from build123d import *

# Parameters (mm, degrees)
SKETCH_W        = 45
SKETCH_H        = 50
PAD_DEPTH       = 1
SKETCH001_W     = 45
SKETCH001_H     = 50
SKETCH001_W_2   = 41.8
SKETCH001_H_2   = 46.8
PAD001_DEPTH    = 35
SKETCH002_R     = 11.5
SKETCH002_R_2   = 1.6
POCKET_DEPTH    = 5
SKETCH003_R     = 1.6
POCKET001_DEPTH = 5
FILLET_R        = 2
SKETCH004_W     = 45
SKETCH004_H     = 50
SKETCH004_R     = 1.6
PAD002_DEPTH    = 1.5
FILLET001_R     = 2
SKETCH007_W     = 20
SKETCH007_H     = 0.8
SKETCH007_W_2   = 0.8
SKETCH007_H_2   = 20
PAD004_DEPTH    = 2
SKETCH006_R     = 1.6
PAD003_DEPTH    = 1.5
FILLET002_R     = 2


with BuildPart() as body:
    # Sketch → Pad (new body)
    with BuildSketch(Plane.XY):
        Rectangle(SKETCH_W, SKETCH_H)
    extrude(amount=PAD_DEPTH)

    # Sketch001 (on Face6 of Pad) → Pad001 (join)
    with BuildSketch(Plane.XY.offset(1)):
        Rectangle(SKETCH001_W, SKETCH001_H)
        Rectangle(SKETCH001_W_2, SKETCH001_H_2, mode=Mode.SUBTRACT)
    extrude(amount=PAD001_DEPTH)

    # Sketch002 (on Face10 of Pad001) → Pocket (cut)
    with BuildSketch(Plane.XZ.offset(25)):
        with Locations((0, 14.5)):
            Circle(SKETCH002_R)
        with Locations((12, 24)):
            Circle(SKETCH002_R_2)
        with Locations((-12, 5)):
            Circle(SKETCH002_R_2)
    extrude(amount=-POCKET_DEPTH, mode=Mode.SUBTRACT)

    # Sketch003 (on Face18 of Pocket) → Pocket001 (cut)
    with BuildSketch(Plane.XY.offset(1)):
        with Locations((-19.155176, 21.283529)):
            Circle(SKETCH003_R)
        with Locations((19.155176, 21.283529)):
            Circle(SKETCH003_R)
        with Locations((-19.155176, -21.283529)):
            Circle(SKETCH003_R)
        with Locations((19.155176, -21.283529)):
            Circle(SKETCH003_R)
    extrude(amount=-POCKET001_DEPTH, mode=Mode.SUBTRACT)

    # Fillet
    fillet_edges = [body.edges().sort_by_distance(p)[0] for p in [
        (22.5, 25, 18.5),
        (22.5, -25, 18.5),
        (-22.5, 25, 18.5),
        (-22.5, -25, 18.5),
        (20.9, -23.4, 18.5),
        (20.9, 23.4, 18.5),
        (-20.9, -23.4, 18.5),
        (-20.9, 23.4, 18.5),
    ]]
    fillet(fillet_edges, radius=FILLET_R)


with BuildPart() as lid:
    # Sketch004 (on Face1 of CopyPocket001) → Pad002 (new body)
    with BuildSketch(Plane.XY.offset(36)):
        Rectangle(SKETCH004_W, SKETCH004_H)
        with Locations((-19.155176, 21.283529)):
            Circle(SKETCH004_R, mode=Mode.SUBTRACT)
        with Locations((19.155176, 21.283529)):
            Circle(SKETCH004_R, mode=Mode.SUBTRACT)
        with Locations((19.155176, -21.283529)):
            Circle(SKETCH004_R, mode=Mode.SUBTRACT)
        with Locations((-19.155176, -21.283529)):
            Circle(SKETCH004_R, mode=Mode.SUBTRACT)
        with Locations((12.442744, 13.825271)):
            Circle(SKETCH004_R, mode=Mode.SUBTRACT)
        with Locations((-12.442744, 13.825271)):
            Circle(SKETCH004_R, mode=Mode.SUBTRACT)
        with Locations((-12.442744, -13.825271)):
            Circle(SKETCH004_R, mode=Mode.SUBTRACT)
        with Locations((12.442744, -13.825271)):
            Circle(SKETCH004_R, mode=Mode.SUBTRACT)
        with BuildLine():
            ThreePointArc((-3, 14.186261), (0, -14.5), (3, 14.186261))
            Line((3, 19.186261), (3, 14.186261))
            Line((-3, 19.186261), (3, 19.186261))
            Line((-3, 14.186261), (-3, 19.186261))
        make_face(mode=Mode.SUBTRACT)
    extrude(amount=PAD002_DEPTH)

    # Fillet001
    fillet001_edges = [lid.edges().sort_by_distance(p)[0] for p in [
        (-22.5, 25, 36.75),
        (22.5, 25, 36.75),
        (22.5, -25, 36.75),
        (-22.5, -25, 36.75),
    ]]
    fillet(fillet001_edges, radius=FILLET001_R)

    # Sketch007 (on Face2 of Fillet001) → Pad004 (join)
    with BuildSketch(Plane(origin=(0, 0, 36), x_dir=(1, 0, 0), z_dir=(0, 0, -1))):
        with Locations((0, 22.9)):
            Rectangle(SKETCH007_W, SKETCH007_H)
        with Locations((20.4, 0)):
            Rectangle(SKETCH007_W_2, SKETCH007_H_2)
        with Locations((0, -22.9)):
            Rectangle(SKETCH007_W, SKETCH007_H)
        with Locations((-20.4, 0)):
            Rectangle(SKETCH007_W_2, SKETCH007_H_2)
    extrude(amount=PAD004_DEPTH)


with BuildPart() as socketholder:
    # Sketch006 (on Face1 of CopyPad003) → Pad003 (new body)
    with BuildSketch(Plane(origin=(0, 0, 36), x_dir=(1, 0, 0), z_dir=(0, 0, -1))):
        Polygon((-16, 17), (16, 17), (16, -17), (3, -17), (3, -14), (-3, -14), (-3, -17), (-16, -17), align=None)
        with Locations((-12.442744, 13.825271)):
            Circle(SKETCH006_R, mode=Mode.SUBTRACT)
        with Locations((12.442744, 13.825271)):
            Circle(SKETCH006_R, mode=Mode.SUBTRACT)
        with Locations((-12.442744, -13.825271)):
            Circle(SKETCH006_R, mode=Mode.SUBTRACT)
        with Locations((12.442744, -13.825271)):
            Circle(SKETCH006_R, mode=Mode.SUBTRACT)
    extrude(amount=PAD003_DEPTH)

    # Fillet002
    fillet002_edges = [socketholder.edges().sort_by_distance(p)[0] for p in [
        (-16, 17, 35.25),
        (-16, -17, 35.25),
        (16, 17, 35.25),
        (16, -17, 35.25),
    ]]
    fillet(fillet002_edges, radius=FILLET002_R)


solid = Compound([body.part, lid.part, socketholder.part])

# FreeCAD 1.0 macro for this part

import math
import FreeCAD as App
import Part
import Sketcher
Q = App.Units.Quantity


def edges_at(feature, points):
    """Names of the edges that pass closest to the given points."""
    edges = feature.Shape.Edges
    near = lambda p: min(range(len(edges)), key=lambda i: edges[i].distToShape(Part.Vertex(*p))[0])
    return sorted({f"Edge{near(p) + 1}" for p in points})


def add_polygon(sketch, points):
    """Adds a closed chain of lines whose ends are joined by coincident constraints."""
    first, n = sketch.GeometryCount, len(points)
    for a, b in zip(points, points[1:] + points[:1]):
        sketch.addGeometry(Part.LineSegment(App.Vector(*a, 0), App.Vector(*b, 0)), False)
    for i in range(n):
        sketch.addConstraint(Sketcher.Constraint("Coincident", first + i, 2, first + (i + 1) % n, 1))

doc = App.newDocument("Part")
body = doc.addObject("PartDesign::Body", "Body")

# Sketch on XY plane
sketch1 = doc.addObject("Sketcher::SketchObject", "Sketch")
body.addObject(sketch1)
sketch1.AttachmentSupport = (doc.XY_Plane, [""])
sketch1.MapMode = "FlatFace"
add_polygon(sketch1, [(-22, 25), (-22, -25), (22, -25), (22, 25)])  # lines 0-3
sketch1.addConstraint([
    Sketcher.Constraint("Vertical", 0),
    Sketcher.Constraint("Horizontal", 1),
    Sketcher.Constraint("Vertical", 2),
    Sketcher.Constraint("Horizontal", 3),
    Sketcher.Constraint("Symmetric", 0, 2, 2, 2, -1, 1),
    Sketcher.Constraint("DistanceX", 1, 1, 1, 2, Q("45 mm")),
    Sketcher.Constraint("DistanceY", 0, 2, 0, 1, Q("50 mm")),
])
pad1 = doc.addObject("PartDesign::Pad", "Pad")
body.addObject(pad1)
pad1.Profile = sketch1
pad1.Length = 1

# Sketch on XY plane
sketch2 = doc.addObject("Sketcher::SketchObject", "Sketch001")
body.addObject(sketch2)
sketch2.AttachmentSupport = (doc.XY_Plane, [""])
sketch2.MapMode = "FlatFace"
sketch2.AttachmentOffset = App.Placement(App.Vector(0, 0, 1), App.Rotation())
add_polygon(sketch2, [(-22, 25), (-22, -25), (22, -25), (22, 25)])  # lines 0-3
add_polygon(sketch2, [(21, -23), (-21, -23), (-21, 23), (21, 23)])  # lines 4-7
sketch2.addConstraint([
    Sketcher.Constraint("Vertical", 0),
    Sketcher.Constraint("Horizontal", 1),
    Sketcher.Constraint("Vertical", 2),
    Sketcher.Constraint("Horizontal", 3),
    Sketcher.Constraint("Horizontal", 4),
    Sketcher.Constraint("Vertical", 5),
    Sketcher.Constraint("Horizontal", 6),
    Sketcher.Constraint("Vertical", 7),
    Sketcher.Constraint("Symmetric", 0, 2, 2, 2, -1, 1),
    Sketcher.Constraint("Symmetric", 4, 2, 6, 2, -1, 1),
    Sketcher.Constraint("DistanceX", 1, 1, 1, 2, Q("45 mm")),
    Sketcher.Constraint("DistanceY", 0, 2, 0, 1, Q("50 mm")),
    Sketcher.Constraint("DistanceX", 4, 2, 4, 1, Q("41.8 mm")),
    Sketcher.Constraint("DistanceY", 5, 1, 5, 2, Q("46.8 mm")),
])
pad2 = doc.addObject("PartDesign::Pad", "Pad001")
body.addObject(pad2)
pad2.Profile = sketch2
pad2.Length = 35

# Sketch on XZ plane
sketch3 = doc.addObject("Sketcher::SketchObject", "Sketch002")
body.addObject(sketch3)
sketch3.AttachmentSupport = (doc.XZ_Plane, [""])
sketch3.MapMode = "FlatFace"
sketch3.AttachmentOffset = App.Placement(App.Vector(0, 0, 25), App.Rotation())
sketch3.addGeometry([
    Part.Circle(App.Vector(0, 14.5, 0), App.Vector(0, 0, 1), 11.5),
    Part.Circle(App.Vector(12, 24, 0), App.Vector(0, 0, 1), 1.6),
    Part.Circle(App.Vector(-12, 5, 0), App.Vector(0, 0, 1), 1.6),
], False)
sketch3.addConstraint([
    Sketcher.Constraint("Equal", 1, 2),
    Sketcher.Constraint("PointOnObject", 0, 3, -2),
    Sketcher.Constraint("Diameter", 0, Q("23 mm")),
    Sketcher.Constraint("Diameter", 1, Q("3.2 mm")),
    Sketcher.Constraint("DistanceX", -1, 1, 1, 3, Q("12 mm")),
    Sketcher.Constraint("DistanceY", -1, 1, 1, 3, Q("24 mm")),
    Sketcher.Constraint("DistanceX", 2, 3, -1, 1, Q("12 mm")),
    Sketcher.Constraint("DistanceY", -1, 1, 2, 3, Q("5 mm")),
    Sketcher.Constraint("DistanceY", -1, 1, 0, 3, Q("14.5 mm")),
])
pocket1 = doc.addObject("PartDesign::Pocket", "Pocket")
body.addObject(pocket1)
pocket1.Profile = sketch3
pocket1.Length = 5

# Sketch on XY plane
sketch4 = doc.addObject("Sketcher::SketchObject", "Sketch003")
body.addObject(sketch4)
sketch4.AttachmentSupport = (doc.XY_Plane, [""])
sketch4.MapMode = "FlatFace"
sketch4.AttachmentOffset = App.Placement(App.Vector(0, 0, 1), App.Rotation())
sketch4.addGeometry([
    Part.Circle(App.Vector(-19.2, 21.3, 0), App.Vector(0, 0, 1), 1.6),
    Part.Circle(App.Vector(19.2, 21.3, 0), App.Vector(0, 0, 1), 1.6),
    Part.Circle(App.Vector(-19.2, -21.3, 0), App.Vector(0, 0, 1), 1.6),
    Part.Circle(App.Vector(19.2, -21.3, 0), App.Vector(0, 0, 1), 1.6),
], False)
sketch4.addConstraint([
    Sketcher.Constraint("Equal", 0, 1),
    Sketcher.Constraint("Equal", 1, 2),
    Sketcher.Constraint("Equal", 2, 3),
    Sketcher.Constraint("Symmetric", 1, 3, 2, 3, -1, 1),
    Sketcher.Constraint("Symmetric", 0, 3, 3, 3, -1, 1),
    Sketcher.Constraint("Symmetric", 0, 3, 1, 3, -2),
    Sketcher.Constraint("Diameter", 0, Q("3.2 mm")),
    Sketcher.Constraint("DistanceY", -1, 1, 0, 3, Q("21.283529 mm")),
    Sketcher.Constraint("DistanceX", 0, 3, -1, 1, Q("19.155176 mm")),
])
pocket2 = doc.addObject("PartDesign::Pocket", "Pocket001")
body.addObject(pocket2)
pocket2.Profile = sketch4
pocket2.Length = 5
doc.recompute()

fillet = doc.addObject("PartDesign::Fillet", "Fillet")
body.addObject(fillet)
fillet.Base = (pocket2, edges_at(pocket2, [
    (22.5, 25, 18),
    (22.5, -25, 18),
    (-22.5, 25, 18),
    (-22.5, -25, 18),
    (20.9, -23.4, 18.5),
    (20.9, 23.4, 18.5),
    (-20.9, -23.4, 18.5),
    (-20.9, 23.4, 18.5),
]))
fillet.Radius = 2
body2 = doc.addObject("PartDesign::Body", "Body001")

# Sketch on XY plane
sketch5 = doc.addObject("Sketcher::SketchObject", "Sketch004")
body2.addObject(sketch5)
sketch5.AttachmentSupport = (doc.getObject("XY_Plane001"), [""])
sketch5.MapMode = "FlatFace"
sketch5.AttachmentOffset = App.Placement(App.Vector(0, 0, 36), App.Rotation())
add_polygon(sketch5, [(-22.5, 25), (-22.5, -25), (22.5, -25), (22.5, 25)])  # lines 0-3
sketch5.addGeometry(Part.Circle(App.Vector(-19.2, -21.3, 0), App.Vector(0, 0, 1), 1.6), False)  # 4
sketch5.addGeometry(Part.Circle(App.Vector(-12.4, -13.8, 0), App.Vector(0, 0, 1), 1.6), False)  # 5
sketch5.addGeometry(Part.Circle(App.Vector(19.2, -21.3, 0), App.Vector(0, 0, 1), 1.6), False)  # 6
sketch5.addGeometry(Part.Circle(App.Vector(12.4, -13.8, 0), App.Vector(0, 0, 1), 1.6), False)  # 7
sketch5.addGeometry(Part.Circle(App.Vector(-12.4, 13.8, 0), App.Vector(0, 0, 1), 1.6), False)  # 8
sketch5.addGeometry(Part.Circle(App.Vector(-19.2, 21.3, 0), App.Vector(0, 0, 1), 1.6), False)  # 9
sketch5.addGeometry(Part.ArcOfCircle(Part.Circle(App.Vector(0, 0, 0), App.Vector(0, 0, 1), 14.5), math.radians(102), math.radians(438)), False)  # 10
sketch5.addGeometry(Part.LineSegment(App.Vector(-3, 14.2, 0), App.Vector(-3, 19.2, 0)), False)  # 11
sketch5.addGeometry(Part.LineSegment(App.Vector(-3, 19.2, 0), App.Vector(3, 19.2, 0)), False)  # 12
sketch5.addGeometry(Part.LineSegment(App.Vector(3, 19.2, 0), App.Vector(3, 14.2, 0)), False)  # 13
sketch5.addGeometry(Part.Circle(App.Vector(12.4, 13.8, 0), App.Vector(0, 0, 1), 1.6), False)  # 14
sketch5.addGeometry(Part.Circle(App.Vector(19.2, 21.3, 0), App.Vector(0, 0, 1), 1.6), False)  # 15
sketch5.addConstraint([
    Sketcher.Constraint("Coincident", 10, 1, 11, 1),
    Sketcher.Constraint("Coincident", 11, 2, 12, 1),
    Sketcher.Constraint("Coincident", 12, 2, 13, 1),
    Sketcher.Constraint("Coincident", 13, 2, 10, 2),
    Sketcher.Constraint("Vertical", 0),
    Sketcher.Constraint("Horizontal", 1),
    Sketcher.Constraint("Vertical", 2),
    Sketcher.Constraint("Horizontal", 3),
    Sketcher.Constraint("Vertical", 11),
    Sketcher.Constraint("Horizontal", 12),
    Sketcher.Constraint("Vertical", 13),
    Sketcher.Constraint("Coincident", 10, 3, -1, 1),
    Sketcher.Constraint("Equal", 4, 5),
    Sketcher.Constraint("Equal", 5, 6),
    Sketcher.Constraint("Equal", 6, 7),
    Sketcher.Constraint("Equal", 7, 8),
    Sketcher.Constraint("Equal", 8, 9),
    Sketcher.Constraint("Equal", 9, 14),
    Sketcher.Constraint("Equal", 14, 15),
    Sketcher.Constraint("Symmetric", 7, 3, 8, 3, -1, 1),
    Sketcher.Constraint("Symmetric", 6, 3, 9, 3, -1, 1),
    Sketcher.Constraint("Symmetric", 5, 3, 14, 3, -1, 1),
    Sketcher.Constraint("Symmetric", 4, 3, 15, 3, -1, 1),
    Sketcher.Constraint("Symmetric", 0, 2, 2, 2, -1, 1),
    Sketcher.Constraint("Symmetric", 4, 3, 6, 3, -2),
    Sketcher.Constraint("Symmetric", 5, 3, 7, 3, -2),
    Sketcher.Constraint("Horizontal", 10, 1, 13, 2),
    Sketcher.Constraint("Diameter", 4, Q("3.2 mm")),
    Sketcher.Constraint("Radius", 10, Q("14.5 mm")),
    Sketcher.Constraint("DistanceX", 1, 1, 1, 2, Q("45 mm")),
    Sketcher.Constraint("DistanceX", 12, 1, 12, 2, Q("6 mm")),
    Sketcher.Constraint("DistanceY", 0, 2, 0, 1, Q("50 mm")),
    Sketcher.Constraint("DistanceY", 11, 1, 11, 2, Q("5 mm")),
    Sketcher.Constraint("DistanceY", 4, 3, 8, 3, Q("35.1088 mm")),
    Sketcher.Constraint("DistanceY", 4, 3, -1, 1, Q("21.283529 mm")),
    Sketcher.Constraint("DistanceX", 5, 3, 6, 3, Q("31.59792 mm")),
    Sketcher.Constraint("DistanceX", 4, 3, -1, 1, Q("19.155176 mm")),
])
pad3 = doc.addObject("PartDesign::Pad", "Pad002")
body2.addObject(pad3)
pad3.Profile = sketch5
pad3.Length = 1.5
doc.recompute()

fillet2 = doc.addObject("PartDesign::Fillet", "Fillet001")
body2.addObject(fillet2)
fillet2.Base = (pad3, edges_at(pad3, [
    (-22.5, 25, 36.75),
    (22.5, 25, 36.75),
    (22.5, -25, 36.75),
    (-22.5, -25, 36.75),
]))
fillet2.Radius = 2

# Sketch on XY plane
sketch6 = doc.addObject("Sketcher::SketchObject", "Sketch005")
body2.addObject(sketch6)
sketch6.AttachmentSupport = (doc.getObject("XY_Plane001"), [""])
sketch6.MapMode = "FlatFace"
sketch6.AttachmentOffset = App.Placement(App.Vector(0, 0, 36), App.Rotation())
add_polygon(sketch6, [(-10, -23.3), (-10, -22.5), (10, -22.5), (10, -23.3)])  # lines 0-3
add_polygon(sketch6, [(20, -10), (20, 10), (20.8, 10), (20.8, -10)])  # lines 4-7
add_polygon(sketch6, [(-10, 22.5), (-10, 23.3), (10, 23.3), (10, 22.5)])  # lines 8-11
add_polygon(sketch6, [(-20.8, -10), (-20.8, 10), (-20, 10), (-20, -10)])  # lines 12-15
sketch6.addConstraint([
    Sketcher.Constraint("Vertical", 0),
    Sketcher.Constraint("Horizontal", 1),
    Sketcher.Constraint("Vertical", 2),
    Sketcher.Constraint("Horizontal", 3),
    Sketcher.Constraint("Vertical", 4),
    Sketcher.Constraint("Horizontal", 5),
    Sketcher.Constraint("Vertical", 6),
    Sketcher.Constraint("Horizontal", 7),
    Sketcher.Constraint("Vertical", 8),
    Sketcher.Constraint("Horizontal", 9),
    Sketcher.Constraint("Vertical", 10),
    Sketcher.Constraint("Horizontal", 11),
    Sketcher.Constraint("Vertical", 12),
    Sketcher.Constraint("Horizontal", 13),
    Sketcher.Constraint("Vertical", 14),
    Sketcher.Constraint("Horizontal", 15),
    Sketcher.Constraint("Symmetric", 2, 2, 8, 2, -1, 1),
    Sketcher.Constraint("Symmetric", 0, 2, 10, 2, -1, 1),
    Sketcher.Constraint("Symmetric", 6, 2, 12, 2, -1, 1),
    Sketcher.Constraint("Symmetric", 4, 2, 14, 2, -1, 1),
    Sketcher.Constraint("Horizontal", 5, 2, 12, 2),
    Sketcher.Constraint("Vertical", 3, 2, 8, 2),
    Sketcher.Constraint("Equal", 15, 0),
    Sketcher.Constraint("Equal", 11, 4),
    Sketcher.Constraint("DistanceX", 1, 1, 1, 2, Q("20 mm")),
    Sketcher.Constraint("DistanceX", 5, 1, 5, 2, Q("0.8 mm")),
    Sketcher.Constraint("DistanceX", -1, 1, 4, 2, Q("20 mm")),
    Sketcher.Constraint("DistanceY", 0, 2, -1, 1, Q("22.5 mm")),
])
pad4 = doc.addObject("PartDesign::Pad", "Pad003")
body2.addObject(pad4)
pad4.Profile = sketch6
pad4.Length = 2
pad4.Reversed = True
body3 = doc.addObject("PartDesign::Body", "Body002")

# Sketch on XY plane
sketch7 = doc.addObject("Sketcher::SketchObject", "Sketch006")
body3.addObject(sketch7)
sketch7.AttachmentSupport = (doc.getObject("XY_Plane002"), [""])
sketch7.MapMode = "FlatFace"
sketch7.AttachmentOffset = App.Placement(App.Vector(0, 0, 36), App.Rotation())
add_polygon(sketch7, [(16, -17), (-16, -17), (-16, 17), (-3, 17), (-3, 14), (3, 14), (3, 17), (16, 17)])  # lines 0-7
sketch7.addGeometry(Part.Circle(App.Vector(12.4, 13.8, 0), App.Vector(0, 0, 1), 1.6), False)  # 8
sketch7.addGeometry(Part.Circle(App.Vector(-12.4, 13.8, 0), App.Vector(0, 0, 1), 1.6), False)  # 9
sketch7.addGeometry(Part.Circle(App.Vector(12.4, -13.8, 0), App.Vector(0, 0, 1), 1.6), False)  # 10
sketch7.addGeometry(Part.Circle(App.Vector(-12.4, -13.8, 0), App.Vector(0, 0, 1), 1.6), False)  # 11
sketch7.addConstraint([
    Sketcher.Constraint("Horizontal", 0),
    Sketcher.Constraint("Vertical", 1),
    Sketcher.Constraint("Horizontal", 2),
    Sketcher.Constraint("Vertical", 3),
    Sketcher.Constraint("Horizontal", 4),
    Sketcher.Constraint("Vertical", 5),
    Sketcher.Constraint("Horizontal", 6),
    Sketcher.Constraint("Vertical", 7),
    Sketcher.Constraint("Equal", 8, 9),
    Sketcher.Constraint("Equal", 9, 10),
    Sketcher.Constraint("Equal", 10, 11),
    Sketcher.Constraint("Symmetric", 9, 3, 10, 3, -1, 1),
    Sketcher.Constraint("Symmetric", 8, 3, 11, 3, -1, 1),
    Sketcher.Constraint("Symmetric", 0, 2, 6, 2, -1, 1),
    Sketcher.Constraint("Symmetric", 8, 3, 9, 3, -2),
    Sketcher.Constraint("Symmetric", 2, 2, 5, 2, -2),
    Sketcher.Constraint("Diameter", 8, Q("3.2 mm")),
    Sketcher.Constraint("DistanceX", 0, 2, 0, 1, Q("32 mm")),
    Sketcher.Constraint("DistanceX", 2, 1, 2, 2, Q("13 mm")),
    Sketcher.Constraint("DistanceY", 1, 1, 1, 2, Q("34 mm")),
    Sketcher.Constraint("DistanceY", 3, 2, 3, 1, Q("3 mm")),
    Sketcher.Constraint("DistanceY", -1, 1, 8, 3, Q("13.825271 mm")),
    Sketcher.Constraint("DistanceX", -1, 1, 8, 3, Q("12.442744 mm")),
])
pad5 = doc.addObject("PartDesign::Pad", "Pad004")
body3.addObject(pad5)
pad5.Profile = sketch7
pad5.Length = 1.5
pad5.Reversed = True
doc.recompute()

fillet3 = doc.addObject("PartDesign::Fillet", "Fillet002")
body3.addObject(fillet3)
fillet3.Base = (pad5, edges_at(pad5, [
    (-16, 17, 35.25),
    (-16, -17, 35.25),
    (16, 17, 35.25),
    (16, -17, 35.25),
]))
fillet3.Radius = 2

doc.recompute()
